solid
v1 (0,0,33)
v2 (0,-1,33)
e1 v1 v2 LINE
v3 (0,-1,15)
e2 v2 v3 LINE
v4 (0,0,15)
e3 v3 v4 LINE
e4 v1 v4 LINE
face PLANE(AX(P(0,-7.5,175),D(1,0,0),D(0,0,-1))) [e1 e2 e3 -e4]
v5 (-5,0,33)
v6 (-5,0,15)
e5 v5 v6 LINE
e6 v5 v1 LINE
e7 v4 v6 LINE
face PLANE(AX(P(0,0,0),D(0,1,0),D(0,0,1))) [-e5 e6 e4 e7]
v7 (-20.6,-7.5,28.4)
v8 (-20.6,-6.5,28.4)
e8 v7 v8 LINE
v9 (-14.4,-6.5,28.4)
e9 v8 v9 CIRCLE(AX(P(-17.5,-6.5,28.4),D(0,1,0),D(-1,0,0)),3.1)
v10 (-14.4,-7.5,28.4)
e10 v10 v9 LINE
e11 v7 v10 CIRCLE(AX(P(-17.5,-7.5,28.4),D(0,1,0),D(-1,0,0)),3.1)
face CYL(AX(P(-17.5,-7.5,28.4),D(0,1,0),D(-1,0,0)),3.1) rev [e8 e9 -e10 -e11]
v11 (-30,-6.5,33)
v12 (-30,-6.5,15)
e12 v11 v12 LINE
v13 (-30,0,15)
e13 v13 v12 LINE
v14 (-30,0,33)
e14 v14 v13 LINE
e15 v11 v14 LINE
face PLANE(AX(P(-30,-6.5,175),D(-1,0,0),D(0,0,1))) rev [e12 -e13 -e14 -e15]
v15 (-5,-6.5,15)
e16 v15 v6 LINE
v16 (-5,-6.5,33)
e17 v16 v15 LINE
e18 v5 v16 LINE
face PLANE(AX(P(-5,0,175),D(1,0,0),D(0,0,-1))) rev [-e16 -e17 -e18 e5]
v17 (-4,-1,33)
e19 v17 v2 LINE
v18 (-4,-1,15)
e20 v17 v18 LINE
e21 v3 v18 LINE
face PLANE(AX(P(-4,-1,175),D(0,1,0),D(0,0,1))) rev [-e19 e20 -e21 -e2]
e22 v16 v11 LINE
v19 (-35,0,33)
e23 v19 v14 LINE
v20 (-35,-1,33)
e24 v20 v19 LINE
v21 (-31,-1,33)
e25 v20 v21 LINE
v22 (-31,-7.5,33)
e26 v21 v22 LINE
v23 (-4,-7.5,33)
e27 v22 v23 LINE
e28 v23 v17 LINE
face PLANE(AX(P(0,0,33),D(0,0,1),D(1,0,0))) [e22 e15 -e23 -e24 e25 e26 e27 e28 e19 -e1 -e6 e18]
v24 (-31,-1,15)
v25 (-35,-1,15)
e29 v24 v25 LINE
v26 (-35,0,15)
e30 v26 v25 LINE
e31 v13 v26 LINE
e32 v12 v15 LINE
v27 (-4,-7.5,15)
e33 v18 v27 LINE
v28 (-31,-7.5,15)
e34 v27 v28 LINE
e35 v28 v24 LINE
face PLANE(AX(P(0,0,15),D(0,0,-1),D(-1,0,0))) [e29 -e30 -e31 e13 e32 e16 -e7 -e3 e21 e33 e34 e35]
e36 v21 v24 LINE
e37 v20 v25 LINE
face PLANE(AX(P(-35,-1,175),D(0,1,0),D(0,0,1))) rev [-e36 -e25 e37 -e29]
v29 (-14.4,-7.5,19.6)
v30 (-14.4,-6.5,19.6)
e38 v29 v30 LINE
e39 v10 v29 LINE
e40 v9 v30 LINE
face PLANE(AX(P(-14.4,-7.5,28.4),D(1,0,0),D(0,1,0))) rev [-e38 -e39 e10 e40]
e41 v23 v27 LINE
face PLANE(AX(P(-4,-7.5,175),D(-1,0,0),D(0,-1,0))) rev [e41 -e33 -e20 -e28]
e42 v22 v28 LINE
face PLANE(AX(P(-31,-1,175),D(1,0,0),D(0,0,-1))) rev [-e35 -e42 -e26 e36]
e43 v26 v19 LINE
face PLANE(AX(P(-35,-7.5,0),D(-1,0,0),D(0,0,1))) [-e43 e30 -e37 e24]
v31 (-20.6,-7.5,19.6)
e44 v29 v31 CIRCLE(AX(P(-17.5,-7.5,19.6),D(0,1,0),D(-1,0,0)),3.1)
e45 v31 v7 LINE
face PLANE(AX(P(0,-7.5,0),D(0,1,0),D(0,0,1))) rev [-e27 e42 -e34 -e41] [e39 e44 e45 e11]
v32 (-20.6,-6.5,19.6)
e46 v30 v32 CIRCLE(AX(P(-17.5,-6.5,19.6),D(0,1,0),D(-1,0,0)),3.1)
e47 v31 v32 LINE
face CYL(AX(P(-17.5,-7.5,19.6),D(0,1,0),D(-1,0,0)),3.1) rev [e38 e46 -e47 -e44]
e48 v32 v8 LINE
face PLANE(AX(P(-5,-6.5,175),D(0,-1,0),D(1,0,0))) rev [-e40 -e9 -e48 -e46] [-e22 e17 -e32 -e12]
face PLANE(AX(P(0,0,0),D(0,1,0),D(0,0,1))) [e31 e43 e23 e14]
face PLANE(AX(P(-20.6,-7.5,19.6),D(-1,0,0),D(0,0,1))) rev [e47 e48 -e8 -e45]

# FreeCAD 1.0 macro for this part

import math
import FreeCAD as App
import Part
import Sketcher
from FreeCAD import Vector

doc = App.newDocument("Part")
body = doc.addObject("PartDesign::Body", "Body")

# Sketch on XZ plane
sketch1 = body.newObject("Sketcher::SketchObject", "Sketch")
sketch1.AttachmentSupport = (doc.getObject("XZ_Plane"), [""])
sketch1.MapMode = "FlatFace"
sketch1.addGeometry([
    Part.LineSegment(Vector(-35, 0, 0), Vector(-35, 175, 0)),
    Part.LineSegment(Vector(-35, 175, 0), Vector(0, 175, 0)),
    Part.LineSegment(Vector(0, 175, 0), Vector(0, 0, 0)),
    Part.LineSegment(Vector(0, 0, 0), Vector(-35, 0, 0)),
], False)
sketch1.addConstraint([
    Sketcher.Constraint("Coincident", 0, 2, 1, 1),
    Sketcher.Constraint("Coincident", 1, 2, 2, 1),
    Sketcher.Constraint("Coincident", 2, 2, 3, 1),
    Sketcher.Constraint("Coincident", 3, 2, 0, 1),
    Sketcher.Constraint("Vertical", 0),
    Sketcher.Constraint("Horizontal", 1),
    Sketcher.Constraint("Vertical", 2),
    Sketcher.Constraint("Horizontal", 3),
    Sketcher.Constraint("Coincident", 2, 2, -1, 1),
    Sketcher.Constraint("DistanceX", 1, 1, 1, 2, 35.0),
    Sketcher.Constraint("DistanceY", 0, 1, 0, 2, 175.0),
])
pad1 = body.newObject("PartDesign::Pad", "Pad")
pad1.Profile = sketch1
pad1.Length = 7.5

# Sketch on XY plane
sketch2 = body.newObject("Sketcher::SketchObject", "Sketch001")
sketch2.AttachmentSupport = (doc.getObject("XY_Plane"), [""])
sketch2.MapMode = "FlatFace"
sketch2.addGeometry([
    Part.LineSegment(Vector(-5, 0, 0), Vector(-5, -6.5, 0)),
    Part.LineSegment(Vector(-5, -6.5, 0), Vector(-30, -6.5, 0)),
    Part.LineSegment(Vector(-30, -6.5, 0), Vector(-30, 0, 0)),
    Part.LineSegment(Vector(-30, 0, 0), Vector(-5, 0, 0)),
], False)
sketch2.addConstraint([
    Sketcher.Constraint("Coincident", 0, 2, 1, 1),
    Sketcher.Constraint("Coincident", 1, 2, 2, 1),
    Sketcher.Constraint("Coincident", 2, 2, 3, 1),
    Sketcher.Constraint("Coincident", 3, 2, 0, 1),
    Sketcher.Constraint("Vertical", 0),
    Sketcher.Constraint("Horizontal", 1),
    Sketcher.Constraint("Vertical", 2),
    Sketcher.Constraint("Horizontal", 3),
    Sketcher.Constraint("PointOnObject", 2, 2, -1),
    Sketcher.Constraint("DistanceX", 1, 2, 1, 1, 25.0),
    Sketcher.Constraint("DistanceY", 0, 2, 0, 1, 6.5),
    Sketcher.Constraint("DistanceX", 0, 2, -1, 1, 5.0),
])
pocket1 = body.newObject("PartDesign::Pocket", "Pocket")
pocket1.Profile = sketch2
pocket1.Type = "ThroughAll"
pocket1.Reversed = True

# Sketch on XZ plane
sketch3 = body.newObject("Sketcher::SketchObject", "Sketch002")
sketch3.AttachmentSupport = (doc.getObject("XZ_Plane"), [""])
sketch3.MapMode = "FlatFace"
sketch3.AttachmentOffset = App.Placement(Vector(0, 0, 7.5), App.Rotation())
sketch3.addGeometry([
    Part.LineSegment(Vector(-20.6, 0, 0), Vector(-14.4, 0, 0)),
    Part.LineSegment(Vector(-14.4, 0, 0), Vector(-14.4, 3.4, 0)),
    Part.ArcOfCircle(Part.Circle(Vector(-17.5, 3.4, 0), Vector(0, 0, 1), 3.1), math.radians(0), math.radians(180)),
    Part.LineSegment(Vector(-20.6, 3.4, 0), Vector(-20.6, 0, 0)),
], False)
sketch3.addConstraint([
    Sketcher.Constraint("Coincident", 0, 2, 1, 1),
    Sketcher.Constraint("Tangent", 1, 2, 2, 1),
    Sketcher.Constraint("Tangent", 2, 2, 3, 1),
    Sketcher.Constraint("Coincident", 3, 2, 0, 1),
    Sketcher.Constraint("Horizontal", 0),
    Sketcher.Constraint("Vertical", 1),
    Sketcher.Constraint("Vertical", 3),
    Sketcher.Constraint("PointOnObject", 0, 2, -1),
    Sketcher.Constraint("Radius", 2, 3.1),
    Sketcher.Constraint("DistanceY", 1, 1, 1, 2, 3.4),
    Sketcher.Constraint("DistanceX", 2, 3, -1, 1, 17.5),
])
pocket2 = body.newObject("PartDesign::Pocket", "Pocket001")
pocket2.Profile = sketch3
pocket2.Type = "ThroughAll"

# Sketch on XY plane
sketch4 = body.newObject("Sketcher::SketchObject", "Sketch003")
sketch4.AttachmentSupport = (doc.getObject("XY_Plane"), [""])
sketch4.MapMode = "FlatFace"
sketch4.addGeometry([
    Part.LineSegment(Vector(-31, -1, 0), Vector(-31, -7.5, 0)),
    Part.LineSegment(Vector(-31, -7.5, 0), Vector(-35, -7.5, 0)),
    Part.LineSegment(Vector(-35, -7.5, 0), Vector(-35, -1, 0)),
    Part.LineSegment(Vector(-35, -1, 0), Vector(-31, -1, 0)),
], False)
sketch4.addConstraint([
    Sketcher.Constraint("Coincident", 0, 2, 1, 1),
    Sketcher.Constraint("Coincident", 1, 2, 2, 1),
    Sketcher.Constraint("Coincident", 2, 2, 3, 1),
    Sketcher.Constraint("Coincident", 3, 2, 0, 1),
    Sketcher.Constraint("Vertical", 0),
    Sketcher.Constraint("Horizontal", 1),
    Sketcher.Constraint("Vertical", 2),
    Sketcher.Constraint("Horizontal", 3),
    Sketcher.Constraint("DistanceX", 1, 2, 1, 1, 4.0),
    Sketcher.Constraint("DistanceY", 0, 2, 0, 1, 6.5),
    Sketcher.Constraint("DistanceX", 0, 2, -1, 1, 31.0),
    Sketcher.Constraint("DistanceY", 2, 2, -1, 1, 1.0),
])
pocket3 = body.newObject("PartDesign::Pocket", "Pocket002")
pocket3.Profile = sketch4
pocket3.Type = "ThroughAll"
pocket3.Reversed = True

# Sketch on XY plane
sketch5 = body.newObject("Sketcher::SketchObject", "Sketch004")
sketch5.AttachmentSupport = (doc.getObject("XY_Plane"), [""])
sketch5.MapMode = "FlatFace"
sketch5.addGeometry([
    Part.LineSegment(Vector(0, -1, 0), Vector(0, -7.5, 0)),
    Part.LineSegment(Vector(0, -7.5, 0), Vector(-4, -7.5, 0)),
    Part.LineSegment(Vector(-4, -7.5, 0), Vector(-4, -1, 0)),
    Part.LineSegment(Vector(-4, -1, 0), Vector(0, -1, 0)),
], False)
sketch5.addConstraint([
    Sketcher.Constraint("Coincident", 0, 2, 1, 1),
    Sketcher.Constraint("Coincident", 1, 2, 2, 1),
    Sketcher.Constraint("Coincident", 2, 2, 3, 1),
    Sketcher.Constraint("Coincident", 3, 2, 0, 1),
    Sketcher.Constraint("Vertical", 0),
    Sketcher.Constraint("Horizontal", 1),
    Sketcher.Constraint("Vertical", 2),
    Sketcher.Constraint("Horizontal", 3),
    Sketcher.Constraint("PointOnObject", 0, 2, -2),
    Sketcher.Constraint("DistanceX", 1, 2, 1, 1, 4.0),
    Sketcher.Constraint("DistanceY", 0, 2, 0, 1, 6.5),
    Sketcher.Constraint("DistanceY", 2, 2, -1, 1, 1.0),
])
pocket4 = body.newObject("PartDesign::Pocket", "Pocket003")
pocket4.Profile = sketch5
pocket4.Type = "ThroughAll"
pocket4.Reversed = True

# Sketch on XZ plane
sketch6 = body.newObject("Sketcher::SketchObject", "Sketch005")
sketch6.AttachmentSupport = (doc.getObject("XZ_Plane"), [""])
sketch6.MapMode = "FlatFace"
sketch6.AttachmentOffset = App.Placement(Vector(0, 0, 7.5), App.Rotation())
sketch6.addGeometry([
    Part.LineSegment(Vector(-14.4, 175, 0), Vector(-20.6, 175, 0)),
    Part.LineSegment(Vector(-20.6, 175, 0), Vector(-20.6, 169.6, 0)),
    Part.ArcOfCircle(Part.Circle(Vector(-17.5, 169.6, 0), Vector(0, 0, 1), 3.1), math.radians(180), math.radians(360)),
    Part.LineSegment(Vector(-14.4, 169.6, 0), Vector(-14.4, 175, 0)),
], False)
sketch6.addConstraint([
    Sketcher.Constraint("Coincident", 0, 2, 1, 1),
    Sketcher.Constraint("Tangent", 1, 2, 2, 1),
    Sketcher.Constraint("Tangent", 2, 2, 3, 1),
    Sketcher.Constraint("Coincident", 3, 2, 0, 1),
    Sketcher.Constraint("Horizontal", 0),
    Sketcher.Constraint("Vertical", 1),
    Sketcher.Constraint("Vertical", 3),
    Sketcher.Constraint("Radius", 2, 3.1),
    Sketcher.Constraint("DistanceY", 1, 2, 1, 1, 5.4),
    Sketcher.Constraint("DistanceY", -1, 1, 0, 2, 175.0),
    Sketcher.Constraint("DistanceX", 2, 3, -1, 1, 17.5),
])
pocket5 = body.newObject("PartDesign::Pocket", "Pocket004")
pocket5.Profile = sketch6
pocket5.Type = "ThroughAll"

# Sketch on XZ plane
sketch7 = body.newObject("Sketcher::SketchObject", "Sketch006")
sketch7.AttachmentSupport = (doc.getObject("XZ_Plane"), [""])
sketch7.MapMode = "FlatFace"
sketch7.AttachmentOffset = App.Placement(Vector(0, 0, 6.5), App.Rotation())
sketch7.addGeometry([
    Part.LineSegment(Vector(-14.4, 103.4, 0), Vector(-14.4, 94.6, 0)),
    Part.ArcOfCircle(Part.Circle(Vector(-17.5, 94.6, 0), Vector(0, 0, 1), 3.1), math.radians(180), math.radians(360)),
    Part.LineSegment(Vector(-20.6, 94.6, 0), Vector(-20.6, 103.4, 0)),
    Part.ArcOfCircle(Part.Circle(Vector(-17.5, 103.4, 0), Vector(0, 0, 1), 3.1), math.radians(0), math.radians(180)),
], False)
sketch7.addConstraint([
    Sketcher.Constraint("Tangent", 0, 2, 1, 2),
    Sketcher.Constraint("Tangent", 1, 1, 2, 1),
    Sketcher.Constraint("Tangent", 2, 2, 3, 2),
    Sketcher.Constraint("Tangent", 3, 1, 0, 1),
    Sketcher.Constraint("Vertical", 0),
    Sketcher.Constraint("Vertical", 2),
    Sketcher.Constraint("Radius", 1, 3.1),
    Sketcher.Constraint("DistanceY", 0, 2, 0, 1, 8.8),
    Sketcher.Constraint("DistanceX", 1, 3, -1, 1, 17.5),
    Sketcher.Constraint("DistanceY", -1, 1, 1, 3, 94.6),
])
pocket6 = body.newObject("PartDesign::Pocket", "Pocket005")
pocket6.Profile = sketch7
pocket6.Type = "ThroughAll"
pocket6.Reversed = True

# Sketch on XZ plane
sketch8 = body.newObject("Sketcher::SketchObject", "Sketch007")
sketch8.AttachmentSupport = (doc.getObject("XZ_Plane"), [""])
sketch8.MapMode = "FlatFace"
sketch8.AttachmentOffset = App.Placement(Vector(0, 0, 6.5), App.Rotation())
sketch8.addGeometry([
    Part.LineSegment(Vector(-14.4, 78.4, 0), Vector(-14.4, 69.6, 0)),
    Part.ArcOfCircle(Part.Circle(Vector(-17.5, 69.6, 0), Vector(0, 0, 1), 3.1), math.radians(180), math.radians(360)),
    Part.LineSegment(Vector(-20.6, 69.6, 0), Vector(-20.6, 78.4, 0)),
    Part.ArcOfCircle(Part.Circle(Vector(-17.5, 78.4, 0), Vector(0, 0, 1), 3.1), math.radians(0), math.radians(180)),
], False)
sketch8.addConstraint([
    Sketcher.Constraint("Tangent", 0, 2, 1, 2),
    Sketcher.Constraint("Tangent", 1, 1, 2, 1),
    Sketcher.Constraint("Tangent", 2, 2, 3, 2),
    Sketcher.Constraint("Tangent", 3, 1, 0, 1),
    Sketcher.Constraint("Vertical", 0),
    Sketcher.Constraint("Vertical", 2),
    Sketcher.Constraint("Radius", 1, 3.1),
    Sketcher.Constraint("DistanceY", 0, 2, 0, 1, 8.8),
    Sketcher.Constraint("DistanceX", 1, 3, -1, 1, 17.5),
    Sketcher.Constraint("DistanceY", -1, 1, 1, 3, 69.6),
])
pocket7 = body.newObject("PartDesign::Pocket", "Pocket006")
pocket7.Profile = sketch8
pocket7.Type = "ThroughAll"
pocket7.Reversed = True

# Sketch on XZ plane
sketch9 = body.newObject("Sketcher::SketchObject", "Sketch008")
sketch9.AttachmentSupport = (doc.getObject("XZ_Plane"), [""])
sketch9.MapMode = "FlatFace"
sketch9.AttachmentOffset = App.Placement(Vector(0, 0, 6.5), App.Rotation())
sketch9.addGeometry([
    Part.LineSegment(Vector(-14.4, 28.4, 0), Vector(-14.4, 19.6, 0)),
    Part.ArcOfCircle(Part.Circle(Vector(-17.5, 19.6, 0), Vector(0, 0, 1), 3.1), math.radians(180), math.radians(360)),
    Part.LineSegment(Vector(-20.6, 19.6, 0), Vector(-20.6, 28.4, 0)),
    Part.ArcOfCircle(Part.Circle(Vector(-17.5, 28.4, 0), Vector(0, 0, 1), 3.1), math.radians(0), math.radians(180)),
], False)
sketch9.addConstraint([
    Sketcher.Constraint("Tangent", 0, 2, 1, 2),
    Sketcher.Constraint("Tangent", 1, 1, 2, 1),
    Sketcher.Constraint("Tangent", 2, 2, 3, 2),
    Sketcher.Constraint("Tangent", 3, 1, 0, 1),
    Sketcher.Constraint("Vertical", 0),
    Sketcher.Constraint("Vertical", 2),
    Sketcher.Constraint("Radius", 1, 3.1),
    Sketcher.Constraint("DistanceY", 0, 2, 0, 1, 8.8),
    Sketcher.Constraint("DistanceX", 1, 3, -1, 1, 17.5),
    Sketcher.Constraint("DistanceY", -1, 1, 1, 3, 19.6),
])
pocket8 = body.newObject("PartDesign::Pocket", "Pocket007")
pocket8.Profile = sketch9
pocket8.Type = "ThroughAll"
pocket8.Reversed = True

# Sketch on XZ plane
sketch10 = body.newObject("Sketcher::SketchObject", "Sketch009")
sketch10.AttachmentSupport = (doc.getObject("XZ_Plane"), [""])
sketch10.MapMode = "FlatFace"
sketch10.AttachmentOffset = App.Placement(Vector(0, 0, 6.5), App.Rotation())
sketch10.addGeometry([
    Part.LineSegment(Vector(-14.4, 153.4, 0), Vector(-14.4, 144.6, 0)),
    Part.ArcOfCircle(Part.Circle(Vector(-17.5, 144.6, 0), Vector(0, 0, 1), 3.1), math.radians(180), math.radians(360)),
    Part.LineSegment(Vector(-20.6, 144.6, 0), Vector(-20.6, 153.4, 0)),
    Part.ArcOfCircle(Part.Circle(Vector(-17.5, 153.4, 0), Vector(0, 0, 1), 3.1), math.radians(0), math.radians(180)),
], False)
sketch10.addConstraint([
    Sketcher.Constraint("Tangent", 0, 2, 1, 2),
    Sketcher.Constraint("Tangent", 1, 1, 2, 1),
    Sketcher.Constraint("Tangent", 2, 2, 3, 2),
    Sketcher.Constraint("Tangent", 3, 1, 0, 1),
    Sketcher.Constraint("Vertical", 0),
    Sketcher.Constraint("Vertical", 2),
    Sketcher.Constraint("Radius", 1, 3.1),
    Sketcher.Constraint("DistanceY", 0, 2, 0, 1, 8.8),
    Sketcher.Constraint("DistanceX", 1, 3, -1, 1, 17.5),
    Sketcher.Constraint("DistanceY", -1, 1, 1, 3, 144.6),
])
pocket9 = body.newObject("PartDesign::Pocket", "Pocket008")
pocket9.Profile = sketch10
pocket9.Type = "ThroughAll"
pocket9.Reversed = True

# Sketch on XZ plane
sketch11 = body.newObject("Sketcher::SketchObject", "Sketch010")
sketch11.AttachmentSupport = (doc.getObject("XZ_Plane"), [""])
sketch11.MapMode = "FlatFace"
sketch11.AttachmentOffset = App.Placement(Vector(0, 0, 6.5), App.Rotation())
sketch11.addGeometry([
    Part.LineSegment(Vector(-14.4, 128.4, 0), Vector(-14.4, 119.6, 0)),
    Part.ArcOfCircle(Part.Circle(Vector(-17.5, 119.6, 0), Vector(0, 0, 1), 3.1), math.radians(180), math.radians(360)),
    Part.LineSegment(Vector(-20.6, 119.6, 0), Vector(-20.6, 128.4, 0)),
    Part.ArcOfCircle(Part.Circle(Vector(-17.5, 128.4, 0), Vector(0, 0, 1), 3.1), math.radians(0), math.radians(180)),
], False)
sketch11.addConstraint([
    Sketcher.Constraint("Tangent", 0, 2, 1, 2),
    Sketcher.Constraint("Tangent", 1, 1, 2, 1),
    Sketcher.Constraint("Tangent", 2, 2, 3, 2),
    Sketcher.Constraint("Tangent", 3, 1, 0, 1),
    Sketcher.Constraint("Vertical", 0),
    Sketcher.Constraint("Vertical", 2),
    Sketcher.Constraint("Radius", 1, 3.1),
    Sketcher.Constraint("DistanceY", 0, 2, 0, 1, 8.8),
    Sketcher.Constraint("DistanceX", 1, 3, -1, 1, 17.5),
    Sketcher.Constraint("DistanceY", -1, 1, 1, 3, 119.6),
])
pocket10 = body.newObject("PartDesign::Pocket", "Pocket009")
pocket10.Profile = sketch11
pocket10.Type = "ThroughAll"
pocket10.Reversed = True

# Sketch on XZ plane
sketch12 = body.newObject("Sketcher::SketchObject", "Sketch011")
sketch12.AttachmentSupport = (doc.getObject("XZ_Plane"), [""])
sketch12.MapMode = "FlatFace"
sketch12.AttachmentOffset = App.Placement(Vector(0, 0, 7.5), App.Rotation())
sketch12.addGeometry([
    Part.LineSegment(Vector(-20.6, 53.4, 0), Vector(-20.6, 44.6, 0)),
    Part.ArcOfCircle(Part.Circle(Vector(-17.5, 44.6, 0), Vector(0, 0, 1), 3.1), math.radians(180), math.radians(360)),
    Part.LineSegment(Vector(-14.4, 44.6, 0), Vector(-14.4, 53.4, 0)),
    Part.ArcOfCircle(Part.Circle(Vector(-17.5, 53.4, 0), Vector(0, 0, 1), 3.1), math.radians(0), math.radians(180)),
], False)
sketch12.addConstraint([
    Sketcher.Constraint("Tangent", 0, 2, 1, 1),
    Sketcher.Constraint("Tangent", 1, 2, 2, 1),
    Sketcher.Constraint("Tangent", 2, 2, 3, 1),
    Sketcher.Constraint("Tangent", 3, 2, 0, 1),
    Sketcher.Constraint("Vertical", 0),
    Sketcher.Constraint("Vertical", 2),
    Sketcher.Constraint("Radius", 1, 3.1),
    Sketcher.Constraint("DistanceY", 0, 2, 0, 1, 8.8),
    Sketcher.Constraint("DistanceX", 1, 3, -1, 1, 17.5),
    Sketcher.Constraint("DistanceY", -1, 1, 1, 3, 44.6),
])
pocket11 = body.newObject("PartDesign::Pocket", "Pocket010")
pocket11.Profile = sketch12
pocket11.Type = "ThroughAll"

# Sketch on XY plane
sketch13 = body.newObject("Sketcher::SketchObject", "Sketch012")
sketch13.AttachmentSupport = (doc.getObject("XY_Plane"), [""])
sketch13.MapMode = "FlatFace"
sketch13.addGeometry([
    Part.LineSegment(Vector(14.531107, 10.974844, 0), Vector(14.531107, -19.862306, 0)),
    Part.LineSegment(Vector(14.531107, -19.862306, 0), Vector(-39.541618, -19.862306, 0)),
    Part.LineSegment(Vector(-39.541618, -19.862306, 0), Vector(-39.541618, 10.974844, 0)),
    Part.LineSegment(Vector(-39.541618, 10.974844, 0), Vector(14.531107, 10.974844, 0)),
], False)
sketch13.addConstraint([
    Sketcher.Constraint("Coincident", 0, 2, 1, 1),
    Sketcher.Constraint("Coincident", 1, 2, 2, 1),
    Sketcher.Constraint("Coincident", 2, 2, 3, 1),
    Sketcher.Constraint("Coincident", 3, 2, 0, 1),
    Sketcher.Constraint("Vertical", 0),
    Sketcher.Constraint("Horizontal", 1),
    Sketcher.Constraint("Vertical", 2),
    Sketcher.Constraint("Horizontal", 3),
    Sketcher.Constraint("DistanceY", 0, 2, 0, 1, 30.83715),
    Sketcher.Constraint("DistanceX", 1, 2, 1, 1, 54.072725),
    Sketcher.Constraint("DistanceX", 1, 2, -1, 1, 39.541618),
    Sketcher.Constraint("DistanceY", 0, 2, -1, 1, 19.862306),
])
pocket12 = body.newObject("PartDesign::Pocket", "Pocket011")
pocket12.Profile = sketch13
pocket12.Length = 15
pocket12.Reversed = True

# Sketch on XY plane
sketch14 = body.newObject("Sketcher::SketchObject", "Sketch013")
sketch14.AttachmentSupport = (doc.getObject("XY_Plane"), [""])
sketch14.MapMode = "FlatFace"
sketch14.AttachmentOffset = App.Placement(Vector(0, 0, 175), App.Rotation())
sketch14.addGeometry([
    Part.LineSegment(Vector(-40.388213, 14.629601, 0), Vector(-40.388213, -12.423921, 0)),
    Part.LineSegment(Vector(-40.388213, -12.423921, 0), Vector(8.614205, -12.423921, 0)),
    Part.LineSegment(Vector(8.614205, -12.423921, 0), Vector(8.614205, 14.629601, 0)),
    Part.LineSegment(Vector(8.614205, 14.629601, 0), Vector(-40.388213, 14.629601, 0)),
], False)
sketch14.addConstraint([
    Sketcher.Constraint("Coincident", 0, 2, 1, 1),
    Sketcher.Constraint("Coincident", 1, 2, 2, 1),
    Sketcher.Constraint("Coincident", 2, 2, 3, 1),
    Sketcher.Constraint("Coincident", 3, 2, 0, 1),
    Sketcher.Constraint("Vertical", 0),
    Sketcher.Constraint("Horizontal", 1),
    Sketcher.Constraint("Vertical", 2),
    Sketcher.Constraint("Horizontal", 3),
    Sketcher.Constraint("DistanceX", 1, 1, 1, 2, 49.002419),
    Sketcher.Constraint("DistanceY", -1, 1, 2, 2, 14.629601),
    Sketcher.Constraint("DistanceY", 0, 2, 0, 1, 27.053523),
    Sketcher.Constraint("DistanceX", 0, 2, -1, 1, 40.388213),
])
pocket13 = body.newObject("PartDesign::Pocket", "Pocket012")
pocket13.Profile = sketch14
pocket13.Length = 142

doc.recompute()
